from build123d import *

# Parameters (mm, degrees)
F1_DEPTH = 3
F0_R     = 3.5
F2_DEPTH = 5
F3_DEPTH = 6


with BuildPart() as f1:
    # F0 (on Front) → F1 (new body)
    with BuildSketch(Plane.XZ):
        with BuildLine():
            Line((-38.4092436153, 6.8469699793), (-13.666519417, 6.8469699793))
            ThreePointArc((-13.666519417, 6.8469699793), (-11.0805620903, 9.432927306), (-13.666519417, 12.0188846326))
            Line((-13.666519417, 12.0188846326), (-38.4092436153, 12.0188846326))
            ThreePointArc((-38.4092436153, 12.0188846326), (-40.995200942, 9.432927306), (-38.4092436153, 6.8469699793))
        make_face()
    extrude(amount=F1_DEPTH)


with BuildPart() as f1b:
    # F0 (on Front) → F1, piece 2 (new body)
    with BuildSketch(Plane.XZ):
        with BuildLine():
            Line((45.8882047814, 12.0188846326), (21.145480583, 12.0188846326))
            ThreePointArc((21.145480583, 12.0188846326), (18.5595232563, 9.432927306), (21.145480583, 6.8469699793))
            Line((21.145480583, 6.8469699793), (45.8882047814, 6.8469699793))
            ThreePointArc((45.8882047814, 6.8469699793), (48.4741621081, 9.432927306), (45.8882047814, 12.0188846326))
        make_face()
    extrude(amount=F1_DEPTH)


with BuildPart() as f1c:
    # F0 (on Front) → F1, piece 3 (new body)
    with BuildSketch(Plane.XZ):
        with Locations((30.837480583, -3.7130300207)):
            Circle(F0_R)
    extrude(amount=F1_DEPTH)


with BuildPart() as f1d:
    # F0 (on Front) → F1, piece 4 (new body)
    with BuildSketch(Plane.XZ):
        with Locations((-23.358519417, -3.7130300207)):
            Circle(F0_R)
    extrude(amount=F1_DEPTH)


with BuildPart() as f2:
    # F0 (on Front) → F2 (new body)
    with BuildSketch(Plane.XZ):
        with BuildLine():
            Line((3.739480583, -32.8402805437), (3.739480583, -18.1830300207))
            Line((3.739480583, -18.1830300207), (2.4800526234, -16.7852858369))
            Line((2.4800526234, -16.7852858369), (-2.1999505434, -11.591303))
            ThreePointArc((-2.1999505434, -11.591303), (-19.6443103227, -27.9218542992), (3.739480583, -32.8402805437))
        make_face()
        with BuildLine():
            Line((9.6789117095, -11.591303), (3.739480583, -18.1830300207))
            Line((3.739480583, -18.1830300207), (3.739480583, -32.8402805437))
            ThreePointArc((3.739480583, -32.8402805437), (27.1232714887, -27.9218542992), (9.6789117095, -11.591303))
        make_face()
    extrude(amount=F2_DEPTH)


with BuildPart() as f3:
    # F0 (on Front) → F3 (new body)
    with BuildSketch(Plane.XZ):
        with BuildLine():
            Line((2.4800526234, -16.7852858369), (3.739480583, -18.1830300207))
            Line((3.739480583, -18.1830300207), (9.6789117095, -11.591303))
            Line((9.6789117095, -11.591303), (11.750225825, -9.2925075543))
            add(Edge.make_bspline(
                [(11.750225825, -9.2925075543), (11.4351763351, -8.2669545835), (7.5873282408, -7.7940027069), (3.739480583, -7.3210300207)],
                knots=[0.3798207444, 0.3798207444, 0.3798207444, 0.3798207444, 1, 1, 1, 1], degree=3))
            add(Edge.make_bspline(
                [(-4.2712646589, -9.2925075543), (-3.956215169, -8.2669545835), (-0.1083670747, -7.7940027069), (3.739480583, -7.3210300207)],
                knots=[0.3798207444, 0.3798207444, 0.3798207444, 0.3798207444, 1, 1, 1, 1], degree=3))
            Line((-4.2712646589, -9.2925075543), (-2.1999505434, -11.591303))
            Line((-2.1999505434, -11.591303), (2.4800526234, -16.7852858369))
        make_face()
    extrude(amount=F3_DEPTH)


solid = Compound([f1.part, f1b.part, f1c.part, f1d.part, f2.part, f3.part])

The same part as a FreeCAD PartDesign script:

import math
import FreeCAD as App
import Part
import Sketcher
from FreeCAD import Vector

doc = App.newDocument("Part")
body = doc.addObject("PartDesign::Body", "Body")

sketch1 = body.newObject("Sketcher::SketchObject", "Sketch")
sketch1.AttachmentSupport = (doc.getObject("XZ_Plane"), [""])
sketch1.MapMode = "FlatFace"
sketch1.addGeometry(Part.LineSegment(Vector(-38.4, 6.8, 0), Vector(-13.7, 6.8, 0)), False)
sketch1.addGeometry(Part.ArcOfCircle(Part.Circle(Vector(-13.7, 9.4, 0), Vector(0, 0, 1), 2.6), math.radians(-90), math.radians(90)), False)
sketch1.addGeometry(Part.LineSegment(Vector(-13.7, 12, 0), Vector(-38.4, 12, 0)), False)
sketch1.addGeometry(Part.ArcOfCircle(Part.Circle(Vector(-38.4, 9.4, 0), Vector(0, 0, 1), 2.6), math.radians(90), math.radians(270)), False)
sketch1.addConstraint(Sketcher.Constraint("Tangent", 0, 2, 1, 1))
sketch1.addConstraint(Sketcher.Constraint("Tangent", 1, 2, 2, 1))
sketch1.addConstraint(Sketcher.Constraint("Tangent", 2, 2, 3, 1))
sketch1.addConstraint(Sketcher.Constraint("Tangent", 3, 2, 0, 1))
sketch1.addConstraint(Sketcher.Constraint("Horizontal", 0))
sketch1.addConstraint(Sketcher.Constraint("Horizontal", 2))
sketch1.addConstraint(Sketcher.Constraint("Radius", 1, 2.585957))
sketch1.addConstraint(Sketcher.Constraint("DistanceX", 0, 1, 0, 2, 24.742724))
sketch1.addConstraint(Sketcher.Constraint("DistanceX", 1, 3, -1, 1, 13.666519))
sketch1.addConstraint(Sketcher.Constraint("DistanceY", -1, 1, 0, 2, 6.84697))
pad1 = body.newObject("PartDesign::Pad", "Pad")
pad1.Profile = sketch1
pad1.Length = 3
body2 = doc.addObject("PartDesign::Body", "Body001")

sketch2 = body2.newObject("Sketcher::SketchObject", "Sketch001")
sketch2.AttachmentSupport = (doc.getObject("XZ_Plane001"), [""])
sketch2.MapMode = "FlatFace"
sketch2.addGeometry(Part.LineSegment(Vector(45.9, 12, 0), Vector(21.1, 12, 0)), False)
sketch2.addGeometry(Part.ArcOfCircle(Part.Circle(Vector(21.1, 9.4, 0), Vector(0, 0, 1), 2.6), math.radians(90), math.radians(270)), False)
sketch2.addGeometry(Part.LineSegment(Vector(21.1, 6.8, 0), Vector(45.9, 6.8, 0)), False)
sketch2.addGeometry(Part.ArcOfCircle(Part.Circle(Vector(45.9, 9.4, 0), Vector(0, 0, 1), 2.6), math.radians(-90), math.radians(90)), False)
sketch2.addConstraint(Sketcher.Constraint("Tangent", 0, 2, 1, 1))
sketch2.addConstraint(Sketcher.Constraint("Tangent", 1, 2, 2, 1))
sketch2.addConstraint(Sketcher.Constraint("Tangent", 2, 2, 3, 1))
sketch2.addConstraint(Sketcher.Constraint("Tangent", 3, 2, 0, 1))
sketch2.addConstraint(Sketcher.Constraint("Horizontal", 0))
sketch2.addConstraint(Sketcher.Constraint("Horizontal", 2))
sketch2.addConstraint(Sketcher.Constraint("Radius", 1, 2.585957))
sketch2.addConstraint(Sketcher.Constraint("DistanceX", 0, 2, 0, 1, 24.742724))
sketch2.addConstraint(Sketcher.Constraint("DistanceX", -1, 1, 1, 3, 21.145481))
sketch2.addConstraint(Sketcher.Constraint("DistanceY", -1, 1, 1, 2, 6.84697))
pad2 = body2.newObject("PartDesign::Pad", "Pad001")
pad2.Profile = sketch2
pad2.Length = 3
body3 = doc.addObject("PartDesign::Body", "Body002")

sketch3 = body3.newObject("Sketcher::SketchObject", "Sketch002")
sketch3.AttachmentSupport = (doc.getObject("XZ_Plane002"), [""])
sketch3.MapMode = "FlatFace"
sketch3.addGeometry(Part.Circle(Vector(30.8, -3.7, 0), Vector(0, 0, 1), 3.5), False)
sketch3.addConstraint(Sketcher.Constraint("Diameter", 0, 7.0))
sketch3.addConstraint(Sketcher.Constraint("DistanceX", -1, 1, 0, 3, 30.837481))
sketch3.addConstraint(Sketcher.Constraint("DistanceY", 0, 3, -1, 1, 3.71303))
pad3 = body3.newObject("PartDesign::Pad", "Pad002")
pad3.Profile = sketch3
pad3.Length = 3
body4 = doc.addObject("PartDesign::Body", "Body003")

sketch4 = body4.newObject("Sketcher::SketchObject", "Sketch003")
sketch4.AttachmentSupport = (doc.getObject("XZ_Plane003"), [""])
sketch4.MapMode = "FlatFace"
sketch4.addGeometry(Part.Circle(Vector(-23.4, -3.7, 0), Vector(0, 0, 1), 3.5), False)
sketch4.addConstraint(Sketcher.Constraint("Diameter", 0, 7.0))
sketch4.addConstraint(Sketcher.Constraint("DistanceX", 0, 3, -1, 1, 23.358519))
sketch4.addConstraint(Sketcher.Constraint("DistanceY", 0, 3, -1, 1, 3.71303))
pad4 = body4.newObject("PartDesign::Pad", "Pad003")
pad4.Profile = sketch4
pad4.Length = 3
body5 = doc.addObject("PartDesign::Body", "Body004")

sketch5 = body5.newObject("Sketcher::SketchObject", "Sketch004")
sketch5.AttachmentSupport = (doc.getObject("XZ_Plane004"), [""])
sketch5.MapMode = "FlatFace"
sketch5.addGeometry(Part.LineSegment(Vector(3.7, -18.2, 0), Vector(2.5, -16.8, 0)), False)
sketch5.addGeometry(Part.LineSegment(Vector(2.5, -16.8, 0), Vector(-2.2, -11.6, 0)), False)
sketch5.addGeometry(Part.ArcOfCircle(Part.Circle(Vector(-6.7, -24.3, 0), Vector(0, 0, 1), 13.5), math.radians(71), math.radians(321)), False)
sketch5.addGeometry(Part.ArcOfCircle(Part.Circle(Vector(14.2, -24.3, 0), Vector(0, 0, 1), 13.5), math.radians(-141), math.radians(109)), False)
sketch5.addGeometry(Part.LineSegment(Vector(9.7, -11.6, 0), Vector(3.7, -18.2, 0)), False)
sketch5.addConstraint(Sketcher.Constraint("Coincident", 0, 2, 1, 1))
sketch5.addConstraint(Sketcher.Constraint("Coincident", 1, 2, 2, 1))
sketch5.addConstraint(Sketcher.Constraint("Coincident", 2, 2, 3, 1))
sketch5.addConstraint(Sketcher.Constraint("Coincident", 3, 2, 4, 1))
sketch5.addConstraint(Sketcher.Constraint("Coincident", 4, 2, 0, 1))
sketch5.addConstraint(Sketcher.Constraint("Equal", 2, 3))
sketch5.addConstraint(Sketcher.Constraint("Parallel", 0, 1))
sketch5.addConstraint(Sketcher.Constraint("Horizontal", 2, 3, 3, 3))
sketch5.addConstraint(Sketcher.Constraint("Horizontal", 1, 2, 3, 2))
sketch5.addConstraint(Sketcher.Constraint("Vertical", 2, 2, 4, 2))
sketch5.addConstraint(Sketcher.Constraint("Radius", 2, 13.469))
sketch5.addConstraint(Sketcher.Constraint("DistanceX", 2, 3, 3, 3, 20.824))
sketch5.addConstraint(Sketcher.Constraint("DistanceY", 3, 3, 4, 2, 6.113))
sketch5.addConstraint(Sketcher.Constraint("Distance", 0, 1.881448))
sketch5.addConstraint(Sketcher.Constraint("DistanceX", 2, 3, -1, 1, 6.672519))
sketch5.addConstraint(Sketcher.Constraint("DistanceY", 2, 3, -1, 1, 24.29603))
sketch5.addConstraint(Sketcher.Constraint("DistanceX", 1, 2, -1, 1, 2.199951))
pad5 = body5.newObject("PartDesign::Pad", "Pad004")
pad5.Profile = sketch5
pad5.Length = 5
body6 = doc.addObject("PartDesign::Body", "Body005")

sketch6 = body6.newObject("Sketcher::SketchObject", "Sketch005")
sketch6.AttachmentSupport = (doc.getObject("XZ_Plane005"), [""])
sketch6.MapMode = "FlatFace"
sketch6.addGeometry(Part.LineSegment(Vector(2.480053, -16.785286, 0), Vector(3.739481, -18.18303, 0)), False)
sketch6.addGeometry(Part.LineSegment(Vector(3.739481, -18.18303, 0), Vector(9.678912, -11.591303, 0)), False)
sketch6.addGeometry(Part.LineSegment(Vector(9.678912, -11.591303, 0), Vector(11.750226, -9.292508, 0)), False)
sketch6.addGeometry(Part.BSplineCurve([Vector(11.750226, -9.292508, 0), Vector(11.435176, -8.266955, 0), Vector(7.587328, -7.794003, 0), Vector(3.739481, -7.32103, 0)], [4, 4], [0.379820744, 1], False, 3, [1, 1, 1, 1], False), False)
sketch6.addGeometry(Part.BSplineCurve([Vector(-4.271265, -9.292508, 0), Vector(-3.956215, -8.266955, 0), Vector(-0.108367, -7.794003, 0), Vector(3.739481, -7.32103, 0)], [4, 4], [0.379820744, 1], False, 3, [1, 1, 1, 1], False), False)
sketch6.addGeometry(Part.LineSegment(Vector(-4.271265, -9.292508, 0), Vector(-2.199951, -11.591303, 0)), False)
sketch6.addGeometry(Part.LineSegment(Vector(-2.199951, -11.591303, 0), Vector(2.480053, -16.785286, 0)), False)
sketch6.addConstraint(Sketcher.Constraint("Block", 3))
sketch6.addConstraint(Sketcher.Constraint("Block", 4))
sketch6.addConstraint(Sketcher.Constraint("Coincident", 0, 2, 1, 1))
sketch6.addConstraint(Sketcher.Constraint("Coincident", 1, 2, 2, 1))
sketch6.addConstraint(Sketcher.Constraint("Coincident", 2, 2, 3, 1))
sketch6.addConstraint(Sketcher.Constraint("Coincident", 4, 1, 5, 1))
sketch6.addConstraint(Sketcher.Constraint("Coincident", 5, 2, 6, 1))
sketch6.addConstraint(Sketcher.Constraint("Coincident", 6, 2, 0, 1))
sketch6.addConstraint(Sketcher.Constraint("Distance", 0, 1.881448))
sketch6.addConstraint(Sketcher.Constraint("DistanceX", -1, 1, 0, 2, 3.739481))
sketch6.addConstraint(Sketcher.Constraint("DistanceY", 0, 2, -1, 1, 18.18303))
sketch6.addConstraint(Sketcher.Constraint("DistanceX", -1, 1, 1, 2, 9.678912))
sketch6.addConstraint(Sketcher.Constraint("DistanceX", 5, 2, -1, 1, 2.199951))
sketch6.addConstraint(Sketcher.Constraint("DistanceX", 6, 2, 1, 2, 7.198859))
sketch6.addConstraint(Sketcher.Constraint("Distance", 1, 8.872864))
sketch6.addConstraint(Sketcher.Constraint("Distance", 5, 3.094318))
pad6 = body6.newObject("PartDesign::Pad", "Pad005")
pad6.Profile = sketch6
pad6.Length = 6

doc.recompute()
